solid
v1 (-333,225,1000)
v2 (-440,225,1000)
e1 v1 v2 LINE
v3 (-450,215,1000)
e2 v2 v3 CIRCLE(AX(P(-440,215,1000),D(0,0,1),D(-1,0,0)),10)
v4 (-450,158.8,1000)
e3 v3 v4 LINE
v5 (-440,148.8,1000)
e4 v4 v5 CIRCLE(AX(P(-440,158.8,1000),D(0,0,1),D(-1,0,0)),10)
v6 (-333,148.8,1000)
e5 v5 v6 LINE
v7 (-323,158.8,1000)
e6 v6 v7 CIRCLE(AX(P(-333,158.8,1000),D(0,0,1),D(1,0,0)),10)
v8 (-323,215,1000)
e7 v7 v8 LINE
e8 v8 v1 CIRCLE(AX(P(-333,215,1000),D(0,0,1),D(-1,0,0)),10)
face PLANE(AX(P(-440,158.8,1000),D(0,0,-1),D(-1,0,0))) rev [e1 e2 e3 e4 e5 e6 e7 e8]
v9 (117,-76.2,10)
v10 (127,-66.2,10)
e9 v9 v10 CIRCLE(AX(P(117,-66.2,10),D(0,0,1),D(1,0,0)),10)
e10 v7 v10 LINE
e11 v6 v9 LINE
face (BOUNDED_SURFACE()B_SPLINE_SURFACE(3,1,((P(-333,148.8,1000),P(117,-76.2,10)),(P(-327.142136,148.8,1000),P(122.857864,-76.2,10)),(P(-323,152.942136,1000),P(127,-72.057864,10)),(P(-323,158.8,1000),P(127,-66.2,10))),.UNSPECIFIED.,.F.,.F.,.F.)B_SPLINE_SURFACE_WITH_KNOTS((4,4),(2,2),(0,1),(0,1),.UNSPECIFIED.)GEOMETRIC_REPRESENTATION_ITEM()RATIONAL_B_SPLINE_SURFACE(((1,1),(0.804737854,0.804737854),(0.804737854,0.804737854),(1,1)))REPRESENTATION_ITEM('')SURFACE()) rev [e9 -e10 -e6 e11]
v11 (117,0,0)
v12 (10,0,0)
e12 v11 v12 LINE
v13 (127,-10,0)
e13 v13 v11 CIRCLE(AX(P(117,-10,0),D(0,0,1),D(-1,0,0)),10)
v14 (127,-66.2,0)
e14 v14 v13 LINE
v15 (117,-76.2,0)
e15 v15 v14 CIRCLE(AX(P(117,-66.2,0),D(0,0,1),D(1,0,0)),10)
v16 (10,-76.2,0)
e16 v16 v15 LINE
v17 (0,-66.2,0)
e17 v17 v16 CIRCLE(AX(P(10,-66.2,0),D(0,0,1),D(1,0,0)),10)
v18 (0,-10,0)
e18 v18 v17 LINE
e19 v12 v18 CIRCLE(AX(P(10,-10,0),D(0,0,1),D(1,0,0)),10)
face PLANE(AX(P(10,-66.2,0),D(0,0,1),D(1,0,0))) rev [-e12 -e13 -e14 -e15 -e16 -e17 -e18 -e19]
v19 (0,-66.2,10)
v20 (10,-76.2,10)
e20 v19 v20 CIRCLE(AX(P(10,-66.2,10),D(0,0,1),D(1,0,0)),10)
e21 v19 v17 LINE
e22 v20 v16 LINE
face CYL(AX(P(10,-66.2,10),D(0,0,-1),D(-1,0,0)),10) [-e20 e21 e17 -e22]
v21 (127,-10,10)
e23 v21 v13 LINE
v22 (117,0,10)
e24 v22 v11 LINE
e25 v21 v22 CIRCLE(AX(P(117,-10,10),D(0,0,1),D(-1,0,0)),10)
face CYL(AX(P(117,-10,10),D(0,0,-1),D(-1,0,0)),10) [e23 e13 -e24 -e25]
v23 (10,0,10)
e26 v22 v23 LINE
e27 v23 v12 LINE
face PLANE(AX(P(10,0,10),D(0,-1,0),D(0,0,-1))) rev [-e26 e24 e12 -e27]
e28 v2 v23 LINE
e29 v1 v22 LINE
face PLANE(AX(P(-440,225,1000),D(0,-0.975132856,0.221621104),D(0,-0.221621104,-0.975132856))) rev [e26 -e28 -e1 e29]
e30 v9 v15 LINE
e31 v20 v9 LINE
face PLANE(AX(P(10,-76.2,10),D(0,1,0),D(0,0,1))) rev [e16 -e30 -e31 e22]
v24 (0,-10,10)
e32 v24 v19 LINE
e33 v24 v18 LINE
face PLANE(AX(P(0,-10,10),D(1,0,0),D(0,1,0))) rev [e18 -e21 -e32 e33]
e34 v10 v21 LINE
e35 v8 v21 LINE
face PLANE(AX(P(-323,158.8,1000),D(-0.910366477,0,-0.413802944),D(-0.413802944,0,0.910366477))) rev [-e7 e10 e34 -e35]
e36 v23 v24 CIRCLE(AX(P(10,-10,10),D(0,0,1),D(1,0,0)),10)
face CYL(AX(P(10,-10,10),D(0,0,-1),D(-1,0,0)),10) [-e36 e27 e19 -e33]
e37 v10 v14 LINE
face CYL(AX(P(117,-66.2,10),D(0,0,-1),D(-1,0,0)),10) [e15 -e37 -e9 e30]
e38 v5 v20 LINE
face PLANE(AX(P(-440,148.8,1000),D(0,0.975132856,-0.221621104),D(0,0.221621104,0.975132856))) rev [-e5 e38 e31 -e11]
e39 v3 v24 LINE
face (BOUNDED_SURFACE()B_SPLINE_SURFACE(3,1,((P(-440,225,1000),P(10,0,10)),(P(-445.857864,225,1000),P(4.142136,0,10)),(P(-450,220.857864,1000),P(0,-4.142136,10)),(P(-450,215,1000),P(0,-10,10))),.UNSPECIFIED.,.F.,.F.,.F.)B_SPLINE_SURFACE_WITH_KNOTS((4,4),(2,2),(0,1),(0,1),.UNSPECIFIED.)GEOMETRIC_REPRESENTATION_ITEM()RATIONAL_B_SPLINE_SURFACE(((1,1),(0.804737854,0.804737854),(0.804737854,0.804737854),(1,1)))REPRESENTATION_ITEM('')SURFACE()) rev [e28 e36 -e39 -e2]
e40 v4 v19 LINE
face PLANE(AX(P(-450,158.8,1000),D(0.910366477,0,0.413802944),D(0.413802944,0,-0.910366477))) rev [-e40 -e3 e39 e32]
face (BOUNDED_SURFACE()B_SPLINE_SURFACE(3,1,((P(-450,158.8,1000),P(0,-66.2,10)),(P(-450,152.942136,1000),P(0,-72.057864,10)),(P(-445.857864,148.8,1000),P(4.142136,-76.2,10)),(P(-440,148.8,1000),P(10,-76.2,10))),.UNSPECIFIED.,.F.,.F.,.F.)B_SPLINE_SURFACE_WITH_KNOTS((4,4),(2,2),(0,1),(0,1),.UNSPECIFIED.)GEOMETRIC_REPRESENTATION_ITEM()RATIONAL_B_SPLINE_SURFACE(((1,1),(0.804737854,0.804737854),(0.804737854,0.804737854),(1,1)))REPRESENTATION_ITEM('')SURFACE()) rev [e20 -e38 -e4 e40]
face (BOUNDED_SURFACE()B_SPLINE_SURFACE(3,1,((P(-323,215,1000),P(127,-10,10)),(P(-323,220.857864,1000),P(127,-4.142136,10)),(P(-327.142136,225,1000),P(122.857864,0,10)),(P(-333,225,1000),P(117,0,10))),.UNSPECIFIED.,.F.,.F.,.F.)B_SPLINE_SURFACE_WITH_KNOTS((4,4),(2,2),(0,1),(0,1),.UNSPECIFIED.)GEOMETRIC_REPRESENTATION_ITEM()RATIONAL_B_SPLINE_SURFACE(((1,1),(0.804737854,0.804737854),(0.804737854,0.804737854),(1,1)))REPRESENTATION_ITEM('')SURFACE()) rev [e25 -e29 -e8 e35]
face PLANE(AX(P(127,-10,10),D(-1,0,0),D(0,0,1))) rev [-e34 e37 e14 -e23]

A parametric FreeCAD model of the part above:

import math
import FreeCAD as App
import Part
import Sketcher

V = App.Vector
Q = App.Units.Quantity

doc = App.newDocument("Part")
body = doc.addObject("PartDesign::Body", "Body")

sketch1 = body.newObject("Sketcher::SketchObject", "Sketch")
sketch1.AttachmentSupport = (doc.getObject("XY_Plane"), [""])
sketch1.MapMode = "FlatFace"
sketch1.addGeometry(Part.LineSegment(V(117, 0, 0), V(10, 0, 0)), False)
sketch1.addGeometry(Part.ArcOfCircle(Part.Circle(V(10, -10, 0), V(0, 0, 1), 10), math.radians(90), math.radians(180)), False)
sketch1.addGeometry(Part.LineSegment(V(0, -10, 0), V(0, -66, 0)), False)
sketch1.addGeometry(Part.ArcOfCircle(Part.Circle(V(10, -66, 0), V(0, 0, 1), 10), math.radians(180), math.radians(270)), False)
sketch1.addGeometry(Part.LineSegment(V(10, -76, 0), V(117, -76, 0)), False)
sketch1.addGeometry(Part.ArcOfCircle(Part.Circle(V(117, -66, 0), V(0, 0, 1), 10), math.radians(-90), math.radians(0)), False)
sketch1.addGeometry(Part.LineSegment(V(127, -66, 0), V(127, -10, 0)), False)
sketch1.addGeometry(Part.ArcOfCircle(Part.Circle(V(117, -10, 0), V(0, 0, 1), 10), math.radians(0), math.radians(90)), False)
sketch1.addConstraint(Sketcher.Constraint("Tangent", 0, 2, 1, 1))
sketch1.addConstraint(Sketcher.Constraint("Tangent", 1, 2, 2, 1))
sketch1.addConstraint(Sketcher.Constraint("Tangent", 2, 2, 3, 1))
sketch1.addConstraint(Sketcher.Constraint("Tangent", 3, 2, 4, 1))
sketch1.addConstraint(Sketcher.Constraint("Tangent", 4, 2, 5, 1))
sketch1.addConstraint(Sketcher.Constraint("Tangent", 5, 2, 6, 1))
sketch1.addConstraint(Sketcher.Constraint("Tangent", 6, 2, 7, 1))
sketch1.addConstraint(Sketcher.Constraint("Tangent", 7, 2, 0, 1))
sketch1.addConstraint(Sketcher.Constraint("Horizontal", 0))
sketch1.addConstraint(Sketcher.Constraint("Vertical", 2))
sketch1.addConstraint(Sketcher.Constraint("Horizontal", 4))
sketch1.addConstraint(Sketcher.Constraint("Vertical", 6))
sketch1.addConstraint(Sketcher.Constraint("Equal", 1, 3))
sketch1.addConstraint(Sketcher.Constraint("Equal", 3, 5))
sketch1.addConstraint(Sketcher.Constraint("Equal", 5, 7))
sketch1.addConstraint(Sketcher.Constraint("PointOnObject", 0, 2, -1))
sketch1.addConstraint(Sketcher.Constraint("PointOnObject", 1, 2, -2))
sketch1.addConstraint(Sketcher.Constraint("Radius", 1, Q("10 mm")))
sketch1.addConstraint(Sketcher.Constraint("DistanceX", 0, 2, 0, 1, Q("107 mm")))
sketch1.addConstraint(Sketcher.Constraint("DistanceY", 2, 2, 2, 1, Q("56.2 mm")))
pad1 = body.newObject("PartDesign::Pad", "Pad")
pad1.Profile = sketch1
pad1.Length = 10

sketch2 = body.newObject("Sketcher::SketchObject", "Sketch001")
sketch2.AttachmentSupport = (doc.getObject("XY_Plane"), [""])
sketch2.MapMode = "FlatFace"
sketch2.AttachmentOffset = App.Placement(V(0, 0, 10), App.Rotation())
sketch2.addGeometry(Part.LineSegment(V(10, -76, 0), V(117, -76, 0)), False)
sketch2.addGeometry(Part.ArcOfCircle(Part.Circle(V(117, -66, 0), V(0, 0, 1), 10), math.radians(-90), math.radians(0)), False)
sketch2.addGeometry(Part.LineSegment(V(127, -66, 0), V(127, -10, 0)), False)
sketch2.addGeometry(Part.ArcOfCircle(Part.Circle(V(117, -10, 0), V(0, 0, 1), 10), math.radians(0), math.radians(90)), False)
sketch2.addGeometry(Part.LineSegment(V(117, 0, 0), V(10, 0, 0)), False)
sketch2.addGeometry(Part.ArcOfCircle(Part.Circle(V(10, -10, 0), V(0, 0, 1), 10), math.radians(90), math.radians(180)), False)
sketch2.addGeometry(Part.LineSegment(V(0, -10, 0), V(0, -66, 0)), False)
sketch2.addGeometry(Part.ArcOfCircle(Part.Circle(V(10, -66, 0), V(0, 0, 1), 10), math.radians(180), math.radians(270)), False)
sketch2.addConstraint(Sketcher.Constraint("Tangent", 0, 2, 1, 1))
sketch2.addConstraint(Sketcher.Constraint("Tangent", 1, 2, 2, 1))
sketch2.addConstraint(Sketcher.Constraint("Tangent", 2, 2, 3, 1))
sketch2.addConstraint(Sketcher.Constraint("Tangent", 3, 2, 4, 1))
sketch2.addConstraint(Sketcher.Constraint("Tangent", 4, 2, 5, 1))
sketch2.addConstraint(Sketcher.Constraint("Tangent", 5, 2, 6, 1))
sketch2.addConstraint(Sketcher.Constraint("Tangent", 6, 2, 7, 1))
sketch2.addConstraint(Sketcher.Constraint("Tangent", 7, 2, 0, 1))
sketch2.addConstraint(Sketcher.Constraint("Horizontal", 0))
sketch2.addConstraint(Sketcher.Constraint("Vertical", 2))
sketch2.addConstraint(Sketcher.Constraint("Horizontal", 4))
sketch2.addConstraint(Sketcher.Constraint("Vertical", 6))
sketch2.addConstraint(Sketcher.Constraint("Equal", 1, 3))
sketch2.addConstraint(Sketcher.Constraint("Equal", 3, 5))
sketch2.addConstraint(Sketcher.Constraint("Equal", 5, 7))
sketch2.addConstraint(Sketcher.Constraint("PointOnObject", 3, 2, -1))
sketch2.addConstraint(Sketcher.Constraint("PointOnObject", 5, 2, -2))
sketch2.addConstraint(Sketcher.Constraint("Radius", 1, Q("10 mm")))
sketch2.addConstraint(Sketcher.Constraint("DistanceX", 0, 1, 0, 2, Q("107 mm")))
sketch2.addConstraint(Sketcher.Constraint("DistanceY", 2, 1, 2, 2, Q("56.2 mm")))

sketch3 = body.newObject("Sketcher::SketchObject", "Sketch002")
sketch3.Placement = App.Placement(V(56.393836, 0, 25.633562), App.Rotation(V(0.413802944, 0, -0.910366477), V(0, 0.999999999, 0), V(0.910366477, 0, 0.413802944), "ZXY"))
sketch3.addGeometry(Part.LineSegment(V(-1070, 187, 0), V(17, -38, 0)), False)
sketch3.addConstraint(Sketcher.Constraint("DistanceY", 0, 2, 0, 1, Q("225 mm")))
sketch3.addConstraint(Sketcher.Constraint("DistanceY", -1, 1, 0, 1, Q("186.9 mm")))
sketch3.addConstraint(Sketcher.Constraint("Distance", 0, Q("1110.50664 mm")))
sketch3.addConstraint(Sketcher.Constraint("DistanceX", 0, 1, -1, 1, Q("1070.301314 mm")))
doc.recompute()

additivepipe = body.newObject("PartDesign::AdditivePipe", "AdditivePipe")
additivepipe.Profile = sketch2
additivepipe.Spine = (sketch3, ["Edge1"])

doc.recompute()
